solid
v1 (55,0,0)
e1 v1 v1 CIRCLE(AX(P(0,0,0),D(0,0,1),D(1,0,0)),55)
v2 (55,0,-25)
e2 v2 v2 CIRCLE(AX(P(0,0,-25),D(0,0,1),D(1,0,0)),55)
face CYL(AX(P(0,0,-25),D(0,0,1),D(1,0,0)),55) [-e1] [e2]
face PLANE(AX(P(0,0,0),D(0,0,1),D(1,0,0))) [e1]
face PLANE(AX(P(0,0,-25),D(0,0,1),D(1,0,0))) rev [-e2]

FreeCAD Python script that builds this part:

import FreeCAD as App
import Part
import Sketcher

doc = App.newDocument("Part")
body = doc.addObject("PartDesign::Body", "Body")

sketch1 = doc.addObject("Sketcher::SketchObject", "Sketch")
body.addObject(sketch1)
sketch1.AttachmentSupport = (doc.XY_Plane, [""])
sketch1.MapMode = "FlatFace"
sketch1.addGeometry(Part.Circle(App.Vector(0, 0, 0), App.Vector(0, 0, 1), 55), False)
sketch1.addConstraint([
    Sketcher.Constraint("Coincident", 0, 3, -1, 1),
    Sketcher.Constraint("Diameter", 0, 110.0),
])
pad1 = doc.addObject("PartDesign::Pad", "Pad")
body.addObject(pad1)
pad1.Profile = sketch1
pad1.Length = 25
pad1.Reversed = True

doc.recompute()
